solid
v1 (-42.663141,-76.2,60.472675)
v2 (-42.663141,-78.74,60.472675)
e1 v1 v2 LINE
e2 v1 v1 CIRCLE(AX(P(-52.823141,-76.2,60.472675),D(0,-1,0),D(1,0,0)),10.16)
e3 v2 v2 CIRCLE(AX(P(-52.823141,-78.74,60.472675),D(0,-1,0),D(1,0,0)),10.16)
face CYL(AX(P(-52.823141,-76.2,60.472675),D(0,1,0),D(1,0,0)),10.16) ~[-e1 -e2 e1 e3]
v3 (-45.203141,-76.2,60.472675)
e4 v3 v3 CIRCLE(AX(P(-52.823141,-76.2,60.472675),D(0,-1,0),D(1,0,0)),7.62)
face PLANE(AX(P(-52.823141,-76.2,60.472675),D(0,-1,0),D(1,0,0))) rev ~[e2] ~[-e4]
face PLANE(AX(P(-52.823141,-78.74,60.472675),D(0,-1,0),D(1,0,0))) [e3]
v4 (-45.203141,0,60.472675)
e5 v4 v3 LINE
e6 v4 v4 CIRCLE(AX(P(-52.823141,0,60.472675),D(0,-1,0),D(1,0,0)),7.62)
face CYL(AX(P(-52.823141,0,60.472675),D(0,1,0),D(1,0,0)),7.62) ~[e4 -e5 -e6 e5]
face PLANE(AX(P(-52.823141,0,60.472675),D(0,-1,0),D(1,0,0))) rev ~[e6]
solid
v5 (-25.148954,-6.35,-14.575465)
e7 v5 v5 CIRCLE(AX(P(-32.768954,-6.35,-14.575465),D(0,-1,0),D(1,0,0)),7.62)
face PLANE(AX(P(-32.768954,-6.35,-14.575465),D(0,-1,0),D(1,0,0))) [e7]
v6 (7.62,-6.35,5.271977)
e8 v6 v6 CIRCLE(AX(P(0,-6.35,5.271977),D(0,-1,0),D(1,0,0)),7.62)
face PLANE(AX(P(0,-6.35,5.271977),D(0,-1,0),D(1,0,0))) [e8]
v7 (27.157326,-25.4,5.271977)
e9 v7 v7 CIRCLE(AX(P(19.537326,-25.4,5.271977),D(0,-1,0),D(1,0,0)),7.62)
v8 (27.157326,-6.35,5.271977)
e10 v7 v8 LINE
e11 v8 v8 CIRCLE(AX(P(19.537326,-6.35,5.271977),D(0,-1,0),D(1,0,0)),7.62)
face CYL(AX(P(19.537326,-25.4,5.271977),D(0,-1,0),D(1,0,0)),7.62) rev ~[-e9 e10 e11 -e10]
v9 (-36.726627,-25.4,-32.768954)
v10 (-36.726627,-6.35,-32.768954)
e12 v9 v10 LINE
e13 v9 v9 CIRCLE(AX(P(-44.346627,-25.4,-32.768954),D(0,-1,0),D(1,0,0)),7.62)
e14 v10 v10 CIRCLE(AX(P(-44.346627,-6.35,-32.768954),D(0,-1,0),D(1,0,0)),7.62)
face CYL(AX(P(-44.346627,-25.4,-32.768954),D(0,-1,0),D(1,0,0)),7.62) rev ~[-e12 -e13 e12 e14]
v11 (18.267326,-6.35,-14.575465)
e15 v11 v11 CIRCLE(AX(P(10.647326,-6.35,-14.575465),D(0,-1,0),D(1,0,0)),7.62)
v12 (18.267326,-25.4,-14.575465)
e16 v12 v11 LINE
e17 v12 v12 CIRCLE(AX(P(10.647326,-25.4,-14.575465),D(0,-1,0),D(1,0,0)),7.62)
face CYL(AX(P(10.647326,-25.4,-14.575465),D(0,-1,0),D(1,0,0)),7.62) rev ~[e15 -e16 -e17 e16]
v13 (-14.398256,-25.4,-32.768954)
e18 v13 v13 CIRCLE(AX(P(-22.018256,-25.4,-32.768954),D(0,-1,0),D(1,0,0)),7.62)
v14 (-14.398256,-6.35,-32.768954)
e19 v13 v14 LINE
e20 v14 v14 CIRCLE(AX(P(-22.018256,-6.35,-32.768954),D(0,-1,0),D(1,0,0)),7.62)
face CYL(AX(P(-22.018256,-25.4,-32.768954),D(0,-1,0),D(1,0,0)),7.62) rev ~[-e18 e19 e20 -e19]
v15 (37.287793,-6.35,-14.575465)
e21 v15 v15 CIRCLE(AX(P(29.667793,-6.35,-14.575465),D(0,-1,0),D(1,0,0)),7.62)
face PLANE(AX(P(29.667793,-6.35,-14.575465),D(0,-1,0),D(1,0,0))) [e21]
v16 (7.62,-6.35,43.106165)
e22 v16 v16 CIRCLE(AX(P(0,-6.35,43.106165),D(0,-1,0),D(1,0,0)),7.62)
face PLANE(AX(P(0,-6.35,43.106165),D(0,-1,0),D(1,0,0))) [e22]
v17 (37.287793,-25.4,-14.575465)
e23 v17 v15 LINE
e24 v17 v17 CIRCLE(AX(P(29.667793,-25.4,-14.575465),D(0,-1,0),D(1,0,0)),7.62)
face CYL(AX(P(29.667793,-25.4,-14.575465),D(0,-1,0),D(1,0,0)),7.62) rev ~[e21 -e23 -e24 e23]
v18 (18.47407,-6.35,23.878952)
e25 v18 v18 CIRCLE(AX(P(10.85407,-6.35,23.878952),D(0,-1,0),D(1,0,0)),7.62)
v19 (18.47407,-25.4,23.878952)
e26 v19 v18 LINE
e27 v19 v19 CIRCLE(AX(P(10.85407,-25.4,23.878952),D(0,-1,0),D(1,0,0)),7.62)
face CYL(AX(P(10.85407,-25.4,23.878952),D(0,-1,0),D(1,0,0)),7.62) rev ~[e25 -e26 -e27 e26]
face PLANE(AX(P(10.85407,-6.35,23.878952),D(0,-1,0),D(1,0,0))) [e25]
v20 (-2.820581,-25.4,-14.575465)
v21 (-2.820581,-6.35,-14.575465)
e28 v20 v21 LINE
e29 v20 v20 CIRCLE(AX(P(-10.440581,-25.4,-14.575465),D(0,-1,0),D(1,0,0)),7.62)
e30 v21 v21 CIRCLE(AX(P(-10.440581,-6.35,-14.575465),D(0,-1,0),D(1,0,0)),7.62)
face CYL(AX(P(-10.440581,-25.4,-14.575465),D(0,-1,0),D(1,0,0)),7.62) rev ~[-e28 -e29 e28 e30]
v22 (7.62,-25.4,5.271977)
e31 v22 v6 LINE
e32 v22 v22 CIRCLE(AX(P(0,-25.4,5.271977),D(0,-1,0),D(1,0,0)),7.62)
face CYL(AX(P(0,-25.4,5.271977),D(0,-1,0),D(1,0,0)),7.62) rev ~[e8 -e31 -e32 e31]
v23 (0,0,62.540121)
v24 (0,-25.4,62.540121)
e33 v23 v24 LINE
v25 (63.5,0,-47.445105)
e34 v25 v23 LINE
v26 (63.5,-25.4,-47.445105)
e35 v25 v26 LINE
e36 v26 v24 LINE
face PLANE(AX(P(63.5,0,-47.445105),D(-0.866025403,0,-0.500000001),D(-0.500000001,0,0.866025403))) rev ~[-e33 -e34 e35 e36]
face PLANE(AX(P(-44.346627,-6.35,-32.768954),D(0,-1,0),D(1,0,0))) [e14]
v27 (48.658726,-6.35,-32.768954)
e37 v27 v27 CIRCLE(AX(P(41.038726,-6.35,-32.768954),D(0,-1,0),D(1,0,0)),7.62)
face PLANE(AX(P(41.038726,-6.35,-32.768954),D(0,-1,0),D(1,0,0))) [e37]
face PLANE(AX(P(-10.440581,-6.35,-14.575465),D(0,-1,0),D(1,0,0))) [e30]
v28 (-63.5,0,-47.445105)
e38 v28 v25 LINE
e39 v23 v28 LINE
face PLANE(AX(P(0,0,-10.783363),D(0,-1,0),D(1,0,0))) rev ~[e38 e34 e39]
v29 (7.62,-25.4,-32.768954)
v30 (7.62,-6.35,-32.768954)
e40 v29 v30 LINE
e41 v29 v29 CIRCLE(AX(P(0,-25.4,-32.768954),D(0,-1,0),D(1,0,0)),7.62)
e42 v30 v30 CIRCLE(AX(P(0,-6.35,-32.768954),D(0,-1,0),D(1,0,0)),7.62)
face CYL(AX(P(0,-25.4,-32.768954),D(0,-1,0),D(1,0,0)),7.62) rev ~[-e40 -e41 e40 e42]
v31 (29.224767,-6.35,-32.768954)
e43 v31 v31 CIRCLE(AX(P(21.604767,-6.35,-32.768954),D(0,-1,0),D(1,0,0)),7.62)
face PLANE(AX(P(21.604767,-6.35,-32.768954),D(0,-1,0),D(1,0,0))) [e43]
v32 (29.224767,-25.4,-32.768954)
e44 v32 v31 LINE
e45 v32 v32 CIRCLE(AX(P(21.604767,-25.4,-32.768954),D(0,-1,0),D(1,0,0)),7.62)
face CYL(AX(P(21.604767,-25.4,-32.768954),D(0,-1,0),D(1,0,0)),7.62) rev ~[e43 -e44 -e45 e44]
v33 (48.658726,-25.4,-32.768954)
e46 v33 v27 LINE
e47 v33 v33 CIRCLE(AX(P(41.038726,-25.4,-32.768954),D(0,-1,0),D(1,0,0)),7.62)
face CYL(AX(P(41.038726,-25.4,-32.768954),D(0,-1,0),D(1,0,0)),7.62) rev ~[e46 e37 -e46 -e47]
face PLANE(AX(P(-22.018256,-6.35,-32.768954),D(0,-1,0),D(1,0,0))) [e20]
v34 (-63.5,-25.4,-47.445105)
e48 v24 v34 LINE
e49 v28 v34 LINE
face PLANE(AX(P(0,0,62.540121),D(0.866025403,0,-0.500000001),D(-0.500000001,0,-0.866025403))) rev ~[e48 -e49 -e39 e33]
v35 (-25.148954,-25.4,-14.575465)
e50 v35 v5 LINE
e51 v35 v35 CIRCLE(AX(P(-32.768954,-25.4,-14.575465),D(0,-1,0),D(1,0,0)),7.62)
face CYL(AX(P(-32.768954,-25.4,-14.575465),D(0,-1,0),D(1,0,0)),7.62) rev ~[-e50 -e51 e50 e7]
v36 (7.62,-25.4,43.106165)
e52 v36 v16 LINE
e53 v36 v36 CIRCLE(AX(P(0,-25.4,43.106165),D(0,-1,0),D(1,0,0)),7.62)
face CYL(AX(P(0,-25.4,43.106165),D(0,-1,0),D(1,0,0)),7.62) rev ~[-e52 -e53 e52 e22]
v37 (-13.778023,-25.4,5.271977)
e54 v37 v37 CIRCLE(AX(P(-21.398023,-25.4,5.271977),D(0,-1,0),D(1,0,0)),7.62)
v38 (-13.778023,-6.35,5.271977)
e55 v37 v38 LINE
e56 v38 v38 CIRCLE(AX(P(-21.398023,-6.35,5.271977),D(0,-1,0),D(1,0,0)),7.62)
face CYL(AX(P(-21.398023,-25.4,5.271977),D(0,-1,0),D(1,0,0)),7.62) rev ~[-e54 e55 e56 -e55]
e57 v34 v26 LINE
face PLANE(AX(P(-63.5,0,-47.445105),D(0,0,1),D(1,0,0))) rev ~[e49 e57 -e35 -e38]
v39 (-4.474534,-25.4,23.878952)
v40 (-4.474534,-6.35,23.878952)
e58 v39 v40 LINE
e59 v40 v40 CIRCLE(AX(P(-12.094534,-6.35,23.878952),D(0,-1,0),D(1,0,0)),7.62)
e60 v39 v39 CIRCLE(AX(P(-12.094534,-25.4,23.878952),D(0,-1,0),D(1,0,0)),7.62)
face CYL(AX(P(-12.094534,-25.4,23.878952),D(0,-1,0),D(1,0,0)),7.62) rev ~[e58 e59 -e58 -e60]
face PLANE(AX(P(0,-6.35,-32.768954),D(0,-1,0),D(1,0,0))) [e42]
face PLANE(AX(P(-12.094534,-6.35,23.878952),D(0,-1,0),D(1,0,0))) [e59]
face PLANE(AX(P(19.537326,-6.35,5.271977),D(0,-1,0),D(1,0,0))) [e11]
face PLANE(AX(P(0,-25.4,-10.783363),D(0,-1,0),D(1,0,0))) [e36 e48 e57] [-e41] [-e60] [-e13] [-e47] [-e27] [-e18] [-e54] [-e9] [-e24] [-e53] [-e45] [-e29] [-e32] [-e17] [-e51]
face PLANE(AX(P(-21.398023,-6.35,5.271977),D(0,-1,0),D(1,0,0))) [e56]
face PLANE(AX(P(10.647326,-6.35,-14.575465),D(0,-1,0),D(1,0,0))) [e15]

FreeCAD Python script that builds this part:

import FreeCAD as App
import Part
import Sketcher
from FreeCAD import Vector
Q = App.Units.Quantity

doc = App.newDocument("Part")
params = doc.addObject("Spreadsheet::Sheet", "Params")
for row, (alias, value) in enumerate([
    ("sketch1_width", "5 in"),
    ("sketch1_length", "5 in"),
    ("pad1_length", "1 in"),
    ("sketch2_diameter", "0.6 in"),
    ("pocket1_length", "0.75 in"),
    ("sketch3_diameter", "0.6 in"),
    ("pad2_length", "3 in"),
    ("sketch4_diameter", "0.8 in"),
    ("pad3_length", "0.1 in"),
], start=1):
    params.set(f"A{row}", alias)
    params.set(f"B{row}", "=" + value)
    params.setAlias(f"B{row}", alias)

body = doc.addObject("PartDesign::Body", "Body")

# Sketch on XZ plane
sketch1 = body.newObject("Sketcher::SketchObject", "Sketch")
sketch1.AttachmentSupport = (doc.getObject("XZ_Plane"), [""])
sketch1.MapMode = "FlatFace"
sketch1.addGeometry([
    Part.LineSegment(Vector(63.5, -47.445105, 0), Vector(0, 62.540121, 0)),
    Part.LineSegment(Vector(0, 62.540121, 0), Vector(-63.5, -47.445105, 0)),
    Part.LineSegment(Vector(-63.5, -47.445105, 0), Vector(63.5, -47.445105, 0)),
], False)
sketch1.addConstraint([
    Sketcher.Constraint("Coincident", 0, 2, 1, 1),
    Sketcher.Constraint("Coincident", 1, 2, 2, 1),
    Sketcher.Constraint("Coincident", 2, 2, 0, 1),
    Sketcher.Constraint("Horizontal", 2),
    Sketcher.Constraint("PointOnObject", 0, 2, -2),
    Sketcher.Constraint("Equal", 0, 1),
    Sketcher.Constraint("DistanceX", 2, 1, 2, 2, Q("5 in")),
    Sketcher.Constraint("Distance", 0, Q("5 in")),
    Sketcher.Constraint("DistanceY", -1, 1, 0, 2, Q("62.540121 mm")),
])
sketch1.setExpression("Constraints[6]", "Params.sketch1_width")
sketch1.setExpression("Constraints[7]", "Params.sketch1_length")
pad1 = body.newObject("PartDesign::Pad", "Pad")
pad1.Profile = sketch1
pad1.setExpression("Length", "Params.pad1_length")

# Sketch on XZ plane
sketch2 = body.newObject("Sketcher::SketchObject", "Sketch001")
sketch2.AttachmentSupport = (doc.getObject("XZ_Plane"), [""])
sketch2.MapMode = "FlatFace"
sketch2.AttachmentOffset = App.Placement(Vector(0, 0, 1 * 25.4), App.Rotation())
sketch2.addGeometry([
    Part.Circle(Vector(0, 43.106165, 0), Vector(0, 0, 1), 7.62),  # 0
    Part.Circle(Vector(-12.094534, 23.878952, 0), Vector(0, 0, 1), 7.62),  # 1
    Part.Circle(Vector(10.85407, 23.878952, 0), Vector(0, 0, 1), 7.62),  # 2
    Part.Circle(Vector(0, 5.271977, 0), Vector(0, 0, 1), 7.62),  # 3
    Part.Circle(Vector(-21.398023, 5.271977, 0), Vector(0, 0, 1), 7.62),  # 4
    Part.Circle(Vector(19.537326, 5.271977, 0), Vector(0, 0, 1), 7.62),  # 5
    Part.Circle(Vector(-32.768954, -14.575465, 0), Vector(0, 0, 1), 7.62),  # 6
    Part.Circle(Vector(-10.440581, -14.575465, 0), Vector(0, 0, 1), 7.62),  # 7
    Part.Circle(Vector(10.647326, -14.575465, 0), Vector(0, 0, 1), 7.62),  # 8
    Part.Circle(Vector(29.667793, -14.575465, 0), Vector(0, 0, 1), 7.62),  # 9
    Part.Circle(Vector(0, -32.768954, 0), Vector(0, 0, 1), 7.62),  # 10
    Part.Circle(Vector(21.604767, -32.768954, 0), Vector(0, 0, 1), 7.62),  # 11
    Part.Circle(Vector(41.038726, -32.768954, 0), Vector(0, 0, 1), 7.62),  # 12
    Part.Circle(Vector(-22.018256, -32.768954, 0), Vector(0, 0, 1), 7.62),  # 13
    Part.Circle(Vector(-44.346627, -32.768954, 0), Vector(0, 0, 1), 7.62),  # 14
], False)
sketch2.addConstraint([
    Sketcher.Constraint("Equal", 0, 1),
    Sketcher.Constraint("Equal", 1, 2),
    Sketcher.Constraint("Equal", 2, 3),
    Sketcher.Constraint("Equal", 3, 4),
    Sketcher.Constraint("Equal", 4, 5),
    Sketcher.Constraint("Equal", 5, 6),
    Sketcher.Constraint("Equal", 6, 7),
    Sketcher.Constraint("Equal", 7, 8),
    Sketcher.Constraint("Equal", 8, 9),
    Sketcher.Constraint("Equal", 9, 10),
    Sketcher.Constraint("Equal", 10, 11),
    Sketcher.Constraint("Equal", 11, 12),
    Sketcher.Constraint("Equal", 12, 13),
    Sketcher.Constraint("Equal", 13, 14),
    Sketcher.Constraint("PointOnObject", 0, 3, -2),
    Sketcher.Constraint("PointOnObject", 3, 3, -2),
    Sketcher.Constraint("PointOnObject", 10, 3, -2),
    Sketcher.Constraint("Horizontal", 1, 3, 2, 3),
    Sketcher.Constraint("Horizontal", 3, 3, 4, 3),
    Sketcher.Constraint("Horizontal", 4, 3, 5, 3),
    Sketcher.Constraint("Horizontal", 6, 3, 7, 3),
    Sketcher.Constraint("Horizontal", 7, 3, 8, 3),
    Sketcher.Constraint("Horizontal", 8, 3, 9, 3),
    Sketcher.Constraint("Horizontal", 10, 3, 11, 3),
    Sketcher.Constraint("Horizontal", 11, 3, 12, 3),
    Sketcher.Constraint("Horizontal", 12, 3, 13, 3),
    Sketcher.Constraint("Horizontal", 13, 3, 14, 3),
    Sketcher.Constraint("Diameter", 0, Q("0.6 in")),
    Sketcher.Constraint("DistanceX", 8, 3, 5, 3, Q("0.35 in")),
    Sketcher.Constraint("DistanceX", 8, 3, 12, 3, Q("30.3914 mm")),
    Sketcher.Constraint("DistanceX", -1, 1, 2, 3, Q("10.85407 mm")),
    Sketcher.Constraint("DistanceX", 7, 3, -1, 1, Q("10.440581 mm")),
    Sketcher.Constraint("DistanceX", 4, 3, 1, 3, Q("9.303489 mm")),
    Sketcher.Constraint("DistanceX", 1, 3, 5, 3, Q("31.63186 mm")),
    Sketcher.Constraint("DistanceX", 6, 3, 4, 3, Q("11.370931 mm")),
    Sketcher.Constraint("DistanceX", 4, 3, 7, 3, Q("10.957442 mm")),
    Sketcher.Constraint("DistanceY", 10, 3, 7, 3, Q("18.193489 mm")),
    Sketcher.Constraint("DistanceY", 10, 3, 3, 3, Q("38.040931 mm")),
    Sketcher.Constraint("DistanceX", 8, 3, 11, 3, Q("10.957441 mm")),
    Sketcher.Constraint("DistanceX", 14, 3, 13, 3, Q("22.328371 mm")),
    Sketcher.Constraint("DistanceY", -1, 1, 0, 3, Q("43.106165 mm")),
    Sketcher.Constraint("DistanceY", -1, 1, 1, 3, Q("23.878952 mm")),
    Sketcher.Constraint("DistanceY", -1, 1, 3, 3, Q("5.271977 mm")),
    Sketcher.Constraint("DistanceX", -1, 1, 9, 3, Q("29.667793 mm")),
    Sketcher.Constraint("DistanceX", 13, 3, -1, 1, Q("22.018256 mm")),
])
sketch2.setExpression("Constraints[27]", "Params.sketch2_diameter")
pocket1 = body.newObject("PartDesign::Pocket", "Pocket")
pocket1.Profile = sketch2
pocket1.setExpression("Length", "Params.pocket1_length")
body2 = doc.addObject("PartDesign::Body", "Body001")

# Sketch on XZ plane
sketch3 = body2.newObject("Sketcher::SketchObject", "Sketch002")
sketch3.AttachmentSupport = (doc.getObject("XZ_Plane001"), [""])
sketch3.MapMode = "FlatFace"
sketch3.addGeometry(Part.Circle(Vector(-52.823141, 60.472675, 0), Vector(0, 0, 1), 7.62), False)
sketch3.addConstraint([
    Sketcher.Constraint("Diameter", 0, Q("0.6 in")),
    Sketcher.Constraint("DistanceX", 0, 3, -1, 1, Q("52.823141 mm")),
    Sketcher.Constraint("DistanceY", -1, 1, 0, 3, Q("60.472675 mm")),
])
sketch3.setExpression("Constraints[0]", "Params.sketch3_diameter")
pad2 = body2.newObject("PartDesign::Pad", "Pad001")
pad2.Profile = sketch3
pad2.setExpression("Length", "Params.pad2_length")

# Sketch on XZ plane
sketch4 = body2.newObject("Sketcher::SketchObject", "Sketch003")
sketch4.AttachmentSupport = (doc.getObject("XZ_Plane001"), [""])
sketch4.MapMode = "FlatFace"
sketch4.AttachmentOffset = App.Placement(Vector(0, 0, 3 * 25.4), App.Rotation())
sketch4.addGeometry(Part.Circle(Vector(-52.823141, 60.472675, 0), Vector(0, 0, 1), 10.16), False)
sketch4.addConstraint([
    Sketcher.Constraint("Diameter", 0, Q("0.8 in")),
    Sketcher.Constraint("DistanceX", 0, 3, -1, 1, Q("52.823141 mm")),
    Sketcher.Constraint("DistanceY", -1, 1, 0, 3, Q("60.472675 mm")),
])
sketch4.setExpression("Constraints[0]", "Params.sketch4_diameter")
pad3 = body2.newObject("PartDesign::Pad", "Pad002")
pad3.Profile = sketch4
pad3.setExpression("Length", "Params.pad3_length")

doc.recompute()
